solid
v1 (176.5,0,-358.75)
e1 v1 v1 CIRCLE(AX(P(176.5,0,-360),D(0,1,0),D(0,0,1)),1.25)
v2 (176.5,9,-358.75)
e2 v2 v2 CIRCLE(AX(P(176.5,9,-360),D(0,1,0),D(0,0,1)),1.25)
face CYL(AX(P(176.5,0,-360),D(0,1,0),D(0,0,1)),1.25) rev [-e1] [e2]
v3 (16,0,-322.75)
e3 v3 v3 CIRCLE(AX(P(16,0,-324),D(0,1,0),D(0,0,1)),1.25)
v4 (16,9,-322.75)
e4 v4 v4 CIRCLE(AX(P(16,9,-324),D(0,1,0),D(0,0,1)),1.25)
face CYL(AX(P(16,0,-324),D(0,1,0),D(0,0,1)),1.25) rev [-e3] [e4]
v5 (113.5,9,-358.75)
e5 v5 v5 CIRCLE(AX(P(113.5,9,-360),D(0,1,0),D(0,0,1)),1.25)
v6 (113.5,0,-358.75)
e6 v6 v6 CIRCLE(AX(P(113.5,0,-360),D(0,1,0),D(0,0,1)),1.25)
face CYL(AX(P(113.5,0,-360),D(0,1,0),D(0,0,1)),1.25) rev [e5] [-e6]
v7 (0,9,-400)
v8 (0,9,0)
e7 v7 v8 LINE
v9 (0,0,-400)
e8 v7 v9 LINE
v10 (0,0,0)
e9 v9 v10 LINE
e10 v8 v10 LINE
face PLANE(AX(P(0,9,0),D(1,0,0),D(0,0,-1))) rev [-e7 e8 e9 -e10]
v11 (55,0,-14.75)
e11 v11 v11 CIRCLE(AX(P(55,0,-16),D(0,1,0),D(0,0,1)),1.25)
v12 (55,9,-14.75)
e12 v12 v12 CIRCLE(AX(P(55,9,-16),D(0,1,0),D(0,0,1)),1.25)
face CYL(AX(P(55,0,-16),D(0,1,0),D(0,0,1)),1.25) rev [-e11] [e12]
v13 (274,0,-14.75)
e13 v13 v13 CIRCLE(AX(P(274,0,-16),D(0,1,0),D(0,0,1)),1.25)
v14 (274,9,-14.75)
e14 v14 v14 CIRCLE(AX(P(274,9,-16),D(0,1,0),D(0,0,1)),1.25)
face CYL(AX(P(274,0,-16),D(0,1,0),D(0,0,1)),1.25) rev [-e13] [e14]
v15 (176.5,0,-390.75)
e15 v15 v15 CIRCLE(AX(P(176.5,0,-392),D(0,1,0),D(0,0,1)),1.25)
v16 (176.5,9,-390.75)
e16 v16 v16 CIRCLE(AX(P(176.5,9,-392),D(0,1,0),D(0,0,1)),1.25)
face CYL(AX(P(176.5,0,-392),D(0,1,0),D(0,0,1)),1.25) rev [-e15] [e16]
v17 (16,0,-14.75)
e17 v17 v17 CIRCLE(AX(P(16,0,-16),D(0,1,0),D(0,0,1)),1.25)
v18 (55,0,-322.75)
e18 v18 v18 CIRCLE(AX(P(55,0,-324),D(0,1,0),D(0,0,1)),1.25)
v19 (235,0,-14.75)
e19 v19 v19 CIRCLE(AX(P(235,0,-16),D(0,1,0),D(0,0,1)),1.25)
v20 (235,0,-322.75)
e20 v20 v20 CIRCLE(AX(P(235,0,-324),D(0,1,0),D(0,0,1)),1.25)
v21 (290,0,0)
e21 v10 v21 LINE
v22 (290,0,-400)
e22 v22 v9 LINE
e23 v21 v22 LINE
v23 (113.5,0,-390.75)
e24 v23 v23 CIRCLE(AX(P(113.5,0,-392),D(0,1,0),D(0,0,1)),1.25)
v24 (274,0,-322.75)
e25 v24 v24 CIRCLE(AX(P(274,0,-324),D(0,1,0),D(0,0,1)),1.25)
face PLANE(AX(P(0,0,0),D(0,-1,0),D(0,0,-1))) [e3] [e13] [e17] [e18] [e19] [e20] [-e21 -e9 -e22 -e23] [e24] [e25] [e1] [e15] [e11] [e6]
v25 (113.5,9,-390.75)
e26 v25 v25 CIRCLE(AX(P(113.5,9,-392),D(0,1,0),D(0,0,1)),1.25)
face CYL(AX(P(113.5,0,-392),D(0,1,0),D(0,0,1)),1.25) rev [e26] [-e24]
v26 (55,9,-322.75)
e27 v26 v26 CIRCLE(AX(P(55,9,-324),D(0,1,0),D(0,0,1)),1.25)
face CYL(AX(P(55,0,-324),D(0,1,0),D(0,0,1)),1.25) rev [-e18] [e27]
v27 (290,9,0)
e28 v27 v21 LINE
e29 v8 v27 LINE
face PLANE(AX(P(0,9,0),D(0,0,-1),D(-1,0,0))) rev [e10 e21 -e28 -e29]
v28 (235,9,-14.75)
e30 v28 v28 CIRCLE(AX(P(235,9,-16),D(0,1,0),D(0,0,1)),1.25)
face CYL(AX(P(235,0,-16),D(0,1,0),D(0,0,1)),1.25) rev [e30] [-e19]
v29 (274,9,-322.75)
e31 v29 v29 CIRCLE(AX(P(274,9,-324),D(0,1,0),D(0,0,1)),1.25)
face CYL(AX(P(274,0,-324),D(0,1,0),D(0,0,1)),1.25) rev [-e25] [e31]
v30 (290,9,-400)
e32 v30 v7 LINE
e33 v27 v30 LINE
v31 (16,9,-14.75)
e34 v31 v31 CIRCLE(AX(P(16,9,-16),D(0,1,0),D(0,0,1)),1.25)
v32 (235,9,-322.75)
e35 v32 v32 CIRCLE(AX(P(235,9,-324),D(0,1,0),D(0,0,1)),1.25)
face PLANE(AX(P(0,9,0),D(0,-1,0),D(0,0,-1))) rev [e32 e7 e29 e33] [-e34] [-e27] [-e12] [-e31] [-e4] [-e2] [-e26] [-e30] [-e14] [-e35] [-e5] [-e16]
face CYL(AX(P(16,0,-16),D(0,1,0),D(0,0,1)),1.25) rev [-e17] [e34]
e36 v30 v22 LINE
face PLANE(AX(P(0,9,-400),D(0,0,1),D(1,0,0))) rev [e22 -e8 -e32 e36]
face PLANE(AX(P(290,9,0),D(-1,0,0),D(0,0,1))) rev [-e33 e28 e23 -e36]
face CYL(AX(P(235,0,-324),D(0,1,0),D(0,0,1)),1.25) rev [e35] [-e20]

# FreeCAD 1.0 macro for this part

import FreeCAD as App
import Part
import Sketcher
Q = App.Units.Quantity


def add_polygon(sketch, points):
    """Adds a closed chain of lines whose ends are joined by coincident constraints."""
    first, n = sketch.GeometryCount, len(points)
    for a, b in zip(points, points[1:] + points[:1]):
        sketch.addGeometry(Part.LineSegment(App.Vector(*a, 0), App.Vector(*b, 0)), False)
    for i in range(n):
        sketch.addConstraint(Sketcher.Constraint("Coincident", first + i, 2, first + (i + 1) % n, 1))

doc = App.newDocument("Part")
body = doc.addObject("PartDesign::Body", "Body")

# Sketch on XZ plane
sketch1 = body.newObject("Sketcher::SketchObject", "Sketch")
sketch1.AttachmentSupport = (doc.getObject("XZ_Plane"), [""])
sketch1.MapMode = "FlatFace"
add_polygon(sketch1, [(0, -400), (0, 0), (290, 0), (290, -400)])  # lines 0-3
sketch1.addConstraint([
    Sketcher.Constraint("Vertical", 0),
    Sketcher.Constraint("Horizontal", 1),
    Sketcher.Constraint("Vertical", 2),
    Sketcher.Constraint("Horizontal", 3),
    Sketcher.Constraint("Coincident", 0, 2, -1, 1),
    Sketcher.Constraint("DistanceX", 1, 1, 1, 2, Q("290 mm")),
    Sketcher.Constraint("DistanceY", 0, 1, 0, 2, Q("400 mm")),
])
pad1 = body.newObject("PartDesign::Pad", "Pad")
pad1.Profile = sketch1
pad1.Length = 9
pad1.Reversed = True

# Sketch on XZ plane
sketch2 = body.newObject("Sketcher::SketchObject", "Sketch001")
sketch2.AttachmentSupport = (doc.getObject("XZ_Plane"), [""])
sketch2.MapMode = "FlatFace"
sketch2.AttachmentOffset = App.Placement(App.Vector(0, 0, -9), App.Rotation())
sketch2.addGeometry([
    Part.Circle(App.Vector(16, -16, 0), App.Vector(0, 0, 1), 1.25),  # 0
    Part.Circle(App.Vector(55, -16, 0), App.Vector(0, 0, 1), 1.25),  # 1
    Part.Circle(App.Vector(235, -16, 0), App.Vector(0, 0, 1), 1.25),  # 2
    Part.Circle(App.Vector(274, -16, 0), App.Vector(0, 0, 1), 1.25),  # 3
    Part.Circle(App.Vector(16, -324, 0), App.Vector(0, 0, 1), 1.25),  # 4
    Part.Circle(App.Vector(55, -324, 0), App.Vector(0, 0, 1), 1.25),  # 5
    Part.Circle(App.Vector(274, -324, 0), App.Vector(0, 0, 1), 1.25),  # 6
    Part.Circle(App.Vector(235, -324, 0), App.Vector(0, 0, 1), 1.25),  # 7
    Part.Circle(App.Vector(113.5, -392, 0), App.Vector(0, 0, 1), 1.25),  # 8
    Part.Circle(App.Vector(113.5, -360, 0), App.Vector(0, 0, 1), 1.25),  # 9
    Part.Circle(App.Vector(176.5, -360, 0), App.Vector(0, 0, 1), 1.25),  # 10
    Part.Circle(App.Vector(176.5, -392, 0), App.Vector(0, 0, 1), 1.25),  # 11
], False)
sketch2.addConstraint([
    Sketcher.Constraint("Equal", 0, 1),
    Sketcher.Constraint("Equal", 1, 2),
    Sketcher.Constraint("Equal", 2, 3),
    Sketcher.Constraint("Equal", 3, 4),
    Sketcher.Constraint("Equal", 4, 5),
    Sketcher.Constraint("Equal", 5, 6),
    Sketcher.Constraint("Equal", 6, 7),
    Sketcher.Constraint("Equal", 7, 8),
    Sketcher.Constraint("Equal", 8, 9),
    Sketcher.Constraint("Equal", 9, 10),
    Sketcher.Constraint("Equal", 10, 11),
    Sketcher.Constraint("Horizontal", 0, 3, 1, 3),
    Sketcher.Constraint("Horizontal", 1, 3, 2, 3),
    Sketcher.Constraint("Horizontal", 2, 3, 3, 3),
    Sketcher.Constraint("Horizontal", 4, 3, 5, 3),
    Sketcher.Constraint("Horizontal", 5, 3, 6, 3),
    Sketcher.Constraint("Horizontal", 6, 3, 7, 3),
    Sketcher.Constraint("Horizontal", 9, 3, 10, 3),
    Sketcher.Constraint("Horizontal", 8, 3, 11, 3),
    Sketcher.Constraint("Vertical", 0, 3, 4, 3),
    Sketcher.Constraint("Vertical", 1, 3, 5, 3),
    Sketcher.Constraint("Vertical", 3, 3, 6, 3),
    Sketcher.Constraint("Vertical", 2, 3, 7, 3),
    Sketcher.Constraint("Vertical", 8, 3, 9, 3),
    Sketcher.Constraint("Vertical", 10, 3, 11, 3),
    Sketcher.Constraint("Diameter", 0, Q("2.5 mm")),
    Sketcher.Constraint("DistanceX", -1, 1, 0, 3, Q("16 mm")),
    Sketcher.Constraint("DistanceY", 0, 3, -1, 1, Q("16 mm")),
    Sketcher.Constraint("DistanceX", -1, 1, 1, 3, Q("55 mm")),
    Sketcher.Constraint("DistanceX", -1, 1, 2, 3, Q("235 mm")),
    Sketcher.Constraint("DistanceX", -1, 1, 3, 3, Q("274 mm")),
    Sketcher.Constraint("DistanceY", 4, 3, -1, 1, Q("324 mm")),
    Sketcher.Constraint("DistanceY", 8, 3, -1, 1, Q("392 mm")),
    Sketcher.Constraint("DistanceY", 9, 3, -1, 1, Q("360 mm")),
    Sketcher.Constraint("DistanceX", 9, 3, 10, 3, Q("63 mm")),
    Sketcher.Constraint("DistanceX", -1, 1, 8, 3, Q("113.5 mm")),
])
pocket1 = body.newObject("PartDesign::Pocket", "Pocket")
pocket1.Profile = sketch2
pocket1.Type = "ThroughAll"
pocket1.Reversed = True

doc.recompute()
